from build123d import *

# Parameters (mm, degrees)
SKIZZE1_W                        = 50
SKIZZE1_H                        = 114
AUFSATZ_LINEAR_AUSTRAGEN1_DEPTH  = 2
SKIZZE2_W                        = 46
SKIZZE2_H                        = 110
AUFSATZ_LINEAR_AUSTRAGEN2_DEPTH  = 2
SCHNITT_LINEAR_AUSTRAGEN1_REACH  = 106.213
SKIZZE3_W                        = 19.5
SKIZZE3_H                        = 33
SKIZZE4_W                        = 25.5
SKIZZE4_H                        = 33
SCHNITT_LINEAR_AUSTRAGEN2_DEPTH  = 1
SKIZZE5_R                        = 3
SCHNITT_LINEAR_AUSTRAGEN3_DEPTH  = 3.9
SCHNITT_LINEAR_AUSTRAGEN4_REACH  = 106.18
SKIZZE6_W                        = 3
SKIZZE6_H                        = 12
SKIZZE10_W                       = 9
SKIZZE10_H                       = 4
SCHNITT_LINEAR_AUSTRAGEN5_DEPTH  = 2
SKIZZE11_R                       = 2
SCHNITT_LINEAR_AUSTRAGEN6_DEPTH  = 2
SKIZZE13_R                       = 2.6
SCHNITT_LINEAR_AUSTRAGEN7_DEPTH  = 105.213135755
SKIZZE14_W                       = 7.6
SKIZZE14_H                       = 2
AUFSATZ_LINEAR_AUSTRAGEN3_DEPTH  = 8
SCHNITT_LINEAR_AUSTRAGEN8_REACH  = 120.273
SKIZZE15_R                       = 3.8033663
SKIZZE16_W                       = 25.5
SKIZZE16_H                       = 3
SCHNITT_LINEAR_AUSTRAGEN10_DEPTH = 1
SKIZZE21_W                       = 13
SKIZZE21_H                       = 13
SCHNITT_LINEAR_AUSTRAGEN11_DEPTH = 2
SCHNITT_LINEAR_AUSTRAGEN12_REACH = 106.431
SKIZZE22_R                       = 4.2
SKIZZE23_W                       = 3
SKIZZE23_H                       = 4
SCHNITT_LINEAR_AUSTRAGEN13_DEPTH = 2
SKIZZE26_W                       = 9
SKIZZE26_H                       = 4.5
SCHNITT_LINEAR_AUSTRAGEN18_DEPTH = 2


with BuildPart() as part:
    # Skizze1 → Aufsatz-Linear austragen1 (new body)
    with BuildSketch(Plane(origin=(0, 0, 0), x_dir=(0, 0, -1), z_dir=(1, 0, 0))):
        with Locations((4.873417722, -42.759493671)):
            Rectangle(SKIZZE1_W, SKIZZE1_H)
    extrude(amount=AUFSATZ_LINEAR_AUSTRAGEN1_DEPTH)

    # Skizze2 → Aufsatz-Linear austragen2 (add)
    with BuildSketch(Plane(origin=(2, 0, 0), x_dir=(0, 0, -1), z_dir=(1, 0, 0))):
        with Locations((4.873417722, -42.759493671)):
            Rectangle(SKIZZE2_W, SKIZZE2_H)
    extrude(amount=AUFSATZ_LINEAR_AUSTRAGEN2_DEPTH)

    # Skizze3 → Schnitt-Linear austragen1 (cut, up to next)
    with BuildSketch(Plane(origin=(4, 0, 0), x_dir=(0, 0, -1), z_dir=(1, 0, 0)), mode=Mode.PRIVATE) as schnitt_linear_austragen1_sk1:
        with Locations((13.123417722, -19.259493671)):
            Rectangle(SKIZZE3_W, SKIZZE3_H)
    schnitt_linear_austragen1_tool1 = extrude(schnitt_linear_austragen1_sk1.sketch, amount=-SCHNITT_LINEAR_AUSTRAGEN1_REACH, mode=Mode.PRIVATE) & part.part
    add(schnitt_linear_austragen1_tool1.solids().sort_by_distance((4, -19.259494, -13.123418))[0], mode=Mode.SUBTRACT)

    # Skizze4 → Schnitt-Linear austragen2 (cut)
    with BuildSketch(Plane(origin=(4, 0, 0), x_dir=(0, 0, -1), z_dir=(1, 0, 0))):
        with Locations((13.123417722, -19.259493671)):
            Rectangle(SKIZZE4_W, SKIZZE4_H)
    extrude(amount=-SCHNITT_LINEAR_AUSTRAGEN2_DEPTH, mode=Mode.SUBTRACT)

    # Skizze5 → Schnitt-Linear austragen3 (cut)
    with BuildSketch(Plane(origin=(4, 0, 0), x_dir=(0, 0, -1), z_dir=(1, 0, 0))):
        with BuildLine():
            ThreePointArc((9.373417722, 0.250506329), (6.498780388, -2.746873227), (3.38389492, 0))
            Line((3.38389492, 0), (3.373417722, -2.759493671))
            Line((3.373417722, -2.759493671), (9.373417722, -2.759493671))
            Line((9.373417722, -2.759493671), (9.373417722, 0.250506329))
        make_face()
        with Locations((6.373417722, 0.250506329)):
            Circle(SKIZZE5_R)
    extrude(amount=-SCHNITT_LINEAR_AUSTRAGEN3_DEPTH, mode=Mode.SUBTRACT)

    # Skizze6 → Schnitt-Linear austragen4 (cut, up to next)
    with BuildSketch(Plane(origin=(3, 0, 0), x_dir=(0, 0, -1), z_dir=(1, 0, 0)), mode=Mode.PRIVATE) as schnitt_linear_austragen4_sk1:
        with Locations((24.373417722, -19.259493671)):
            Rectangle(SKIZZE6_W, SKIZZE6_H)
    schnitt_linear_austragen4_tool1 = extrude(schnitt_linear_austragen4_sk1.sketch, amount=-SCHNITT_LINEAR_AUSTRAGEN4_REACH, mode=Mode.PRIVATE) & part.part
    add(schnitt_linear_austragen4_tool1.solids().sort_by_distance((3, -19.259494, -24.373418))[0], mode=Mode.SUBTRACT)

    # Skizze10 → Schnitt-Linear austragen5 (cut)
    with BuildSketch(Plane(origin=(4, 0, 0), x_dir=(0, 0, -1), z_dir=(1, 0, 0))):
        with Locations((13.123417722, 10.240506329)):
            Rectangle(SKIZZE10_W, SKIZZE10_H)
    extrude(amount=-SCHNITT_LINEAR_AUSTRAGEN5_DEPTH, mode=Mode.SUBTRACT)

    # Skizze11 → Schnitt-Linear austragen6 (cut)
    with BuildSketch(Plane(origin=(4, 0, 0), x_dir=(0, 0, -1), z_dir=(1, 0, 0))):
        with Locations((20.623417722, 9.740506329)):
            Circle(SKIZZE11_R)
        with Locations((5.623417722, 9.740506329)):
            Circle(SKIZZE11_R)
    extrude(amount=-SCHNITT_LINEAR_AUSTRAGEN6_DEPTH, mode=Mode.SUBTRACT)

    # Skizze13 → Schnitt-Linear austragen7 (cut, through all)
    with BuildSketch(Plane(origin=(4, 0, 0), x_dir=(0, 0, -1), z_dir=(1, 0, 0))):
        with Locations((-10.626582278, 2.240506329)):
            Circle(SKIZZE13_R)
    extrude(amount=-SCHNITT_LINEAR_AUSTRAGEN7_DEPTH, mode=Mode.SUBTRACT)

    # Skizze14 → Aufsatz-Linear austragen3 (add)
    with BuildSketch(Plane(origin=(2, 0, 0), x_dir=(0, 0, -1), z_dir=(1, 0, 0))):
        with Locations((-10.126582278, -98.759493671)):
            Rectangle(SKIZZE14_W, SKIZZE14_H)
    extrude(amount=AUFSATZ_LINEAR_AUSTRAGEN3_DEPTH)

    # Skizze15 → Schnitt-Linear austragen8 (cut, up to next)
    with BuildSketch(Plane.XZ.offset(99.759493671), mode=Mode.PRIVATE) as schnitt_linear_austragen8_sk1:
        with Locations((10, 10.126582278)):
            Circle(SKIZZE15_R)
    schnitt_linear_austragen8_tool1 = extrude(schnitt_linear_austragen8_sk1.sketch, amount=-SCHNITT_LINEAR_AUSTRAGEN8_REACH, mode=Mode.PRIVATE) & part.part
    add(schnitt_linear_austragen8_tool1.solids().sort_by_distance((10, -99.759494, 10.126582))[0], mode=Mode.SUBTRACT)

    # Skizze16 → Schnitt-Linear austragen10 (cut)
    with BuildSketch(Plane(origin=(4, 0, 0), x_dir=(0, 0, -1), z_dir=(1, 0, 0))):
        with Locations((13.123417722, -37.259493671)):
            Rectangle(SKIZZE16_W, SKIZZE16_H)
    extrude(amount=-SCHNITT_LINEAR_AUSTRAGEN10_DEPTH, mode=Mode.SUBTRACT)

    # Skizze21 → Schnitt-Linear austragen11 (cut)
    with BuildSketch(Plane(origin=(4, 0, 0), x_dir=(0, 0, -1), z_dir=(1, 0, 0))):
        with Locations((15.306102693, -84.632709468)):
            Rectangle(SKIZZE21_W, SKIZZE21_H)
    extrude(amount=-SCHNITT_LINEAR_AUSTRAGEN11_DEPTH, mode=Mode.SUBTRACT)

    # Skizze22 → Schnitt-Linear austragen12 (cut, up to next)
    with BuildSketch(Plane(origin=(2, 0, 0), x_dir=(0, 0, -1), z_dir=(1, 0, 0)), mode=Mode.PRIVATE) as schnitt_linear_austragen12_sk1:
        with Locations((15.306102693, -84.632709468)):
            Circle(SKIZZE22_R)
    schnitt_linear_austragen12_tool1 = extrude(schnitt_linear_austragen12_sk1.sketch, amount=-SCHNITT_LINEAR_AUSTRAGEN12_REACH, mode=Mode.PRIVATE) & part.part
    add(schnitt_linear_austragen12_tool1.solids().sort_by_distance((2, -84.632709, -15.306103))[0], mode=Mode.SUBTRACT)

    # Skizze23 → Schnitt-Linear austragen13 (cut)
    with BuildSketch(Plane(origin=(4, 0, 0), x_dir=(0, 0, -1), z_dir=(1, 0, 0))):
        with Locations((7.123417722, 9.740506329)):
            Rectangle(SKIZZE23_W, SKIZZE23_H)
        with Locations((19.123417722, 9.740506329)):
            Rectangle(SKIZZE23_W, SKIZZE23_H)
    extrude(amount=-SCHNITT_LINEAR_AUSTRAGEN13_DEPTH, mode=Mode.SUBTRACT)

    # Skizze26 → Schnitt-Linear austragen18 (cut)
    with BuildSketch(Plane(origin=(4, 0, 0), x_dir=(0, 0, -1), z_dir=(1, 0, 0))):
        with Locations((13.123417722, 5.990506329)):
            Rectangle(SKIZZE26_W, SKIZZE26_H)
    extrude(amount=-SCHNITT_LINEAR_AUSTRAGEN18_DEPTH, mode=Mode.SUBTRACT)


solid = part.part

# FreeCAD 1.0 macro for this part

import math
import FreeCAD as App
import Part
import Sketcher
from FreeCAD import Vector
Q = App.Units.Quantity

doc = App.newDocument("Part")
body = doc.addObject("PartDesign::Body", "Body")

# Sketch on YZ plane
sketch1 = body.newObject("Sketcher::SketchObject", "Sketch")
sketch1.AttachmentSupport = (doc.getObject("YZ_Plane"), [""])
sketch1.MapMode = "FlatFace"
sketch1.addGeometry(Part.LineSegment(Vector(14, 20, 0), Vector(-100, 20, 0)), False)
sketch1.addGeometry(Part.LineSegment(Vector(-100, 20, 0), Vector(-100, -30, 0)), False)
sketch1.addGeometry(Part.LineSegment(Vector(-100, -30, 0), Vector(14, -30, 0)), False)
sketch1.addGeometry(Part.LineSegment(Vector(14, -30, 0), Vector(14, 20, 0)), False)
sketch1.addConstraint(Sketcher.Constraint("Coincident", 0, 2, 1, 1))
sketch1.addConstraint(Sketcher.Constraint("Coincident", 1, 2, 2, 1))
sketch1.addConstraint(Sketcher.Constraint("Coincident", 2, 2, 3, 1))
sketch1.addConstraint(Sketcher.Constraint("Coincident", 3, 2, 0, 1))
sketch1.addConstraint(Sketcher.Constraint("Horizontal", 0))
sketch1.addConstraint(Sketcher.Constraint("Vertical", 1))
sketch1.addConstraint(Sketcher.Constraint("Horizontal", 2))
sketch1.addConstraint(Sketcher.Constraint("Vertical", 3))
sketch1.addConstraint(Sketcher.Constraint("DistanceX", 0, 2, 0, 1, Q("114 mm")))
sketch1.addConstraint(Sketcher.Constraint("DistanceY", 1, 2, 1, 1, Q("50 mm")))
sketch1.addConstraint(Sketcher.Constraint("DistanceX", 0, 2, -1, 1, Q("99.759494 mm")))
sketch1.addConstraint(Sketcher.Constraint("DistanceY", -1, 1, 0, 2, Q("20.126582 mm")))
pad1 = body.newObject("PartDesign::Pad", "Pad")
pad1.Profile = sketch1
pad1.Length = 2

# Sketch on YZ plane
sketch2 = body.newObject("Sketcher::SketchObject", "Sketch001")
sketch2.AttachmentSupport = (doc.getObject("YZ_Plane"), [""])
sketch2.MapMode = "FlatFace"
sketch2.AttachmentOffset = App.Placement(Vector(0, 0, 2), App.Rotation())
sketch2.addGeometry(Part.LineSegment(Vector(12, 18, 0), Vector(-98, 18, 0)), False)
sketch2.addGeometry(Part.LineSegment(Vector(-98, 18, 0), Vector(-98, -28, 0)), False)
sketch2.addGeometry(Part.LineSegment(Vector(-98, -28, 0), Vector(12, -28, 0)), False)
sketch2.addGeometry(Part.LineSegment(Vector(12, -28, 0), Vector(12, 18, 0)), False)
sketch2.addConstraint(Sketcher.Constraint("Coincident", 0, 2, 1, 1))
sketch2.addConstraint(Sketcher.Constraint("Coincident", 1, 2, 2, 1))
sketch2.addConstraint(Sketcher.Constraint("Coincident", 2, 2, 3, 1))
sketch2.addConstraint(Sketcher.Constraint("Coincident", 3, 2, 0, 1))
sketch2.addConstraint(Sketcher.Constraint("Horizontal", 0))
sketch2.addConstraint(Sketcher.Constraint("Vertical", 1))
sketch2.addConstraint(Sketcher.Constraint("Horizontal", 2))
sketch2.addConstraint(Sketcher.Constraint("Vertical", 3))
sketch2.addConstraint(Sketcher.Constraint("DistanceX", 0, 2, 0, 1, Q("110 mm")))
sketch2.addConstraint(Sketcher.Constraint("DistanceY", 1, 2, 1, 1, Q("46 mm")))
sketch2.addConstraint(Sketcher.Constraint("DistanceX", 0, 2, -1, 1, Q("97.759494 mm")))
sketch2.addConstraint(Sketcher.Constraint("DistanceY", -1, 1, 0, 2, Q("18.126582 mm")))
pad2 = body.newObject("PartDesign::Pad", "Pad001")
pad2.Profile = sketch2
pad2.Length = 2

# Sketch on YZ plane
sketch3 = body.newObject("Sketcher::SketchObject", "Sketch002")
sketch3.AttachmentSupport = (doc.getObject("YZ_Plane"), [""])
sketch3.MapMode = "FlatFace"
sketch3.AttachmentOffset = App.Placement(Vector(0, 0, 4), App.Rotation())
sketch3.addGeometry(Part.LineSegment(Vector(-3, -3, 0), Vector(-36, -3, 0)), False)
sketch3.addGeometry(Part.LineSegment(Vector(-36, -3, 0), Vector(-36, -23, 0)), False)
sketch3.addGeometry(Part.LineSegment(Vector(-36, -23, 0), Vector(-3, -23, 0)), False)
sketch3.addGeometry(Part.LineSegment(Vector(-3, -23, 0), Vector(-3, -3, 0)), False)
sketch3.addConstraint(Sketcher.Constraint("Coincident", 0, 2, 1, 1))
sketch3.addConstraint(Sketcher.Constraint("Coincident", 1, 2, 2, 1))
sketch3.addConstraint(Sketcher.Constraint("Coincident", 2, 2, 3, 1))
sketch3.addConstraint(Sketcher.Constraint("Coincident", 3, 2, 0, 1))
sketch3.addConstraint(Sketcher.Constraint("Horizontal", 0))
sketch3.addConstraint(Sketcher.Constraint("Vertical", 1))
sketch3.addConstraint(Sketcher.Constraint("Horizontal", 2))
sketch3.addConstraint(Sketcher.Constraint("Vertical", 3))
sketch3.addConstraint(Sketcher.Constraint("DistanceX", 0, 2, 0, 1, Q("33 mm")))
sketch3.addConstraint(Sketcher.Constraint("DistanceY", 1, 2, 1, 1, Q("19.5 mm")))
sketch3.addConstraint(Sketcher.Constraint("DistanceX", 0, 2, -1, 1, Q("35.759494 mm")))
sketch3.addConstraint(Sketcher.Constraint("DistanceY", 0, 2, -1, 1, Q("3.373418 mm")))
pocket1 = body.newObject("PartDesign::Pocket", "Pocket")
pocket1.Profile = sketch3
pocket1.Type = "UpToFirst"

# Sketch on YZ plane
sketch4 = body.newObject("Sketcher::SketchObject", "Sketch003")
sketch4.AttachmentSupport = (doc.getObject("YZ_Plane"), [""])
sketch4.MapMode = "FlatFace"
sketch4.AttachmentOffset = App.Placement(Vector(0, 0, 4), App.Rotation())
sketch4.addGeometry(Part.LineSegment(Vector(-3, 0, 0), Vector(-36, 0, 0)), False)
sketch4.addGeometry(Part.LineSegment(Vector(-36, 0, 0), Vector(-36, -26, 0)), False)
sketch4.addGeometry(Part.LineSegment(Vector(-36, -26, 0), Vector(-3, -26, 0)), False)
sketch4.addGeometry(Part.LineSegment(Vector(-3, -26, 0), Vector(-3, 0, 0)), False)
sketch4.addConstraint(Sketcher.Constraint("Coincident", 0, 2, 1, 1))
sketch4.addConstraint(Sketcher.Constraint("Coincident", 1, 2, 2, 1))
sketch4.addConstraint(Sketcher.Constraint("Coincident", 2, 2, 3, 1))
sketch4.addConstraint(Sketcher.Constraint("Coincident", 3, 2, 0, 1))
sketch4.addConstraint(Sketcher.Constraint("Horizontal", 0))
sketch4.addConstraint(Sketcher.Constraint("Vertical", 1))
sketch4.addConstraint(Sketcher.Constraint("Horizontal", 2))
sketch4.addConstraint(Sketcher.Constraint("Vertical", 3))
sketch4.addConstraint(Sketcher.Constraint("DistanceX", 0, 2, 0, 1, Q("33 mm")))
sketch4.addConstraint(Sketcher.Constraint("DistanceY", 1, 2, 1, 1, Q("25.5 mm")))
sketch4.addConstraint(Sketcher.Constraint("DistanceX", 0, 2, -1, 1, Q("35.759494 mm")))
sketch4.addConstraint(Sketcher.Constraint("DistanceY", 0, 2, -1, 1, Q("0.373418 mm")))
pocket2 = body.newObject("PartDesign::Pocket", "Pocket001")
pocket2.Profile = sketch4
pocket2.Length = 1

# Sketch on YZ plane
sketch5 = body.newObject("Sketcher::SketchObject", "Sketch004")
sketch5.AttachmentSupport = (doc.getObject("YZ_Plane"), [""])
sketch5.MapMode = "FlatFace"
sketch5.AttachmentOffset = App.Placement(Vector(0, 0, 4), App.Rotation())
sketch5.addGeometry(Part.LineSegment(Vector(0, -3.4, 0), Vector(-2.8, -3.4, 0)), False)
sketch5.addGeometry(Part.LineSegment(Vector(-2.8, -3.4, 0), Vector(-2.8, -9.4, 0)), False)
sketch5.addGeometry(Part.LineSegment(Vector(-2.8, -9.4, 0), Vector(0.3, -9.4, 0)), False)
sketch5.addGeometry(Part.ArcOfCircle(Part.Circle(Vector(0.3, -6.4, 0), Vector(0, 0, 1), 3), math.radians(-90), math.radians(95)), False)
sketch5.addConstraint(Sketcher.Constraint("Coincident", 0, 2, 1, 1))
sketch5.addConstraint(Sketcher.Constraint("Coincident", 1, 2, 2, 1))
sketch5.addConstraint(Sketcher.Constraint("Tangent", 2, 2, 3, 1))
sketch5.addConstraint(Sketcher.Constraint("Coincident", 3, 2, 0, 1))
sketch5.addConstraint(Sketcher.Constraint("Vertical", 1))
sketch5.addConstraint(Sketcher.Constraint("Horizontal", 2))
sketch5.addConstraint(Sketcher.Constraint("PointOnObject", 3, 2, -2))
sketch5.addConstraint(Sketcher.Constraint("Radius", 3, Q("3 mm")))
sketch5.addConstraint(Sketcher.Constraint("DistanceY", 1, 2, 1, 1, Q("6 mm")))
sketch5.addConstraint(Sketcher.Constraint("DistanceX", 2, 1, 2, 2, Q("3.01 mm")))
sketch5.addConstraint(Sketcher.Constraint("Distance", 0, Q("2.759514 mm")))
sketch5.addConstraint(Sketcher.Constraint("DistanceY", 3, 3, -1, 1, Q("6.373418 mm")))
pocket3 = body.newObject("PartDesign::Pocket", "Pocket002")
pocket3.Profile = sketch5
pocket3.Length = 3.9

# Sketch on YZ plane
sketch6 = body.newObject("Sketcher::SketchObject", "Sketch005")
sketch6.AttachmentSupport = (doc.getObject("YZ_Plane"), [""])
sketch6.MapMode = "FlatFace"
sketch6.AttachmentOffset = App.Placement(Vector(0, 0, 3), App.Rotation())
sketch6.addGeometry(Part.LineSegment(Vector(-13.3, -22.9, 0), Vector(-25.3, -22.9, 0)), False)
sketch6.addGeometry(Part.LineSegment(Vector(-25.3, -22.9, 0), Vector(-25.3, -25.9, 0)), False)
sketch6.addGeometry(Part.LineSegment(Vector(-25.3, -25.9, 0), Vector(-13.3, -25.9, 0)), False)
sketch6.addGeometry(Part.LineSegment(Vector(-13.3, -25.9, 0), Vector(-13.3, -22.9, 0)), False)
sketch6.addConstraint(Sketcher.Constraint("Coincident", 0, 2, 1, 1))
sketch6.addConstraint(Sketcher.Constraint("Coincident", 1, 2, 2, 1))
sketch6.addConstraint(Sketcher.Constraint("Coincident", 2, 2, 3, 1))
sketch6.addConstraint(Sketcher.Constraint("Coincident", 3, 2, 0, 1))
sketch6.addConstraint(Sketcher.Constraint("Horizontal", 0))
sketch6.addConstraint(Sketcher.Constraint("Vertical", 1))
sketch6.addConstraint(Sketcher.Constraint("Horizontal", 2))
sketch6.addConstraint(Sketcher.Constraint("Vertical", 3))
sketch6.addConstraint(Sketcher.Constraint("DistanceX", 0, 2, 0, 1, Q("12 mm")))
sketch6.addConstraint(Sketcher.Constraint("DistanceY", 1, 2, 1, 1, Q("3 mm")))
sketch6.addConstraint(Sketcher.Constraint("DistanceX", 0, 2, -1, 1, Q("25.259494 mm")))
sketch6.addConstraint(Sketcher.Constraint("DistanceY", 0, 2, -1, 1, Q("22.873418 mm")))
pocket4 = body.newObject("PartDesign::Pocket", "Pocket003")
pocket4.Profile = sketch6
pocket4.Type = "UpToFirst"

# Sketch on YZ plane
sketch7 = body.newObject("Sketcher::SketchObject", "Sketch006")
sketch7.AttachmentSupport = (doc.getObject("YZ_Plane"), [""])
sketch7.MapMode = "FlatFace"
sketch7.AttachmentOffset = App.Placement(Vector(0, 0, 4), App.Rotation())
sketch7.addGeometry(Part.LineSegment(Vector(12.2, -8.6, 0), Vector(8.2, -8.6, 0)), False)
sketch7.addGeometry(Part.LineSegment(Vector(8.2, -8.6, 0), Vector(8.2, -17.6, 0)), False)
sketch7.addGeometry(Part.LineSegment(Vector(8.2, -17.6, 0), Vector(12.2, -17.6, 0)), False)
sketch7.addGeometry(Part.LineSegment(Vector(12.2, -17.6, 0), Vector(12.2, -8.6, 0)), False)
sketch7.addConstraint(Sketcher.Constraint("Coincident", 0, 2, 1, 1))
sketch7.addConstraint(Sketcher.Constraint("Coincident", 1, 2, 2, 1))
sketch7.addConstraint(Sketcher.Constraint("Coincident", 2, 2, 3, 1))
sketch7.addConstraint(Sketcher.Constraint("Coincident", 3, 2, 0, 1))
sketch7.addConstraint(Sketcher.Constraint("Horizontal", 0))
sketch7.addConstraint(Sketcher.Constraint("Vertical", 1))
sketch7.addConstraint(Sketcher.Constraint("Horizontal", 2))
sketch7.addConstraint(Sketcher.Constraint("Vertical", 3))
sketch7.addConstraint(Sketcher.Constraint("DistanceX", 0, 2, 0, 1, Q("4 mm")))
sketch7.addConstraint(Sketcher.Constraint("DistanceY", 1, 2, 1, 1, Q("9 mm")))
sketch7.addConstraint(Sketcher.Constraint("DistanceX", -1, 1, 0, 2, Q("8.240506 mm")))
sketch7.addConstraint(Sketcher.Constraint("DistanceY", 0, 2, -1, 1, Q("8.623418 mm")))
pocket5 = body.newObject("PartDesign::Pocket", "Pocket004")
pocket5.Profile = sketch7
pocket5.Length = 2

# Sketch on YZ plane
sketch8 = body.newObject("Sketcher::SketchObject", "Sketch007")
sketch8.AttachmentSupport = (doc.getObject("YZ_Plane"), [""])
sketch8.MapMode = "FlatFace"
sketch8.AttachmentOffset = App.Placement(Vector(0, 0, 4), App.Rotation())
sketch8.addGeometry(Part.Circle(Vector(9.7, -20.6, 0), Vector(0, 0, 1), 2), False)
sketch8.addGeometry(Part.Circle(Vector(9.7, -5.6, 0), Vector(0, 0, 1), 2), False)
sketch8.addConstraint(Sketcher.Constraint("Equal", 0, 1))
sketch8.addConstraint(Sketcher.Constraint("Vertical", 0, 3, 1, 3))
sketch8.addConstraint(Sketcher.Constraint("Diameter", 0, Q("4 mm")))
sketch8.addConstraint(Sketcher.Constraint("DistanceY", 0, 3, 1, 3, Q("15 mm")))
sketch8.addConstraint(Sketcher.Constraint("DistanceX", -1, 1, 0, 3, Q("9.740506 mm")))
sketch8.addConstraint(Sketcher.Constraint("DistanceY", 0, 3, -1, 1, Q("20.623418 mm")))
pocket6 = body.newObject("PartDesign::Pocket", "Pocket005")
pocket6.Profile = sketch8
pocket6.Length = 2

# Sketch on YZ plane
sketch9 = body.newObject("Sketcher::SketchObject", "Sketch008")
sketch9.AttachmentSupport = (doc.getObject("YZ_Plane"), [""])
sketch9.MapMode = "FlatFace"
sketch9.AttachmentOffset = App.Placement(Vector(0, 0, 4), App.Rotation())
sketch9.addGeometry(Part.Circle(Vector(2.2, 10.6, 0), Vector(0, 0, 1), 2.6), False)
sketch9.addConstraint(Sketcher.Constraint("Diameter", 0, Q("5.2 mm")))
sketch9.addConstraint(Sketcher.Constraint("DistanceX", -1, 1, 0, 3, Q("2.240506 mm")))
sketch9.addConstraint(Sketcher.Constraint("DistanceY", -1, 1, 0, 3, Q("10.626582 mm")))
pocket7 = body.newObject("PartDesign::Pocket", "Pocket006")
pocket7.Profile = sketch9
pocket7.Type = "ThroughAll"

# Sketch on YZ plane
sketch10 = body.newObject("Sketcher::SketchObject", "Sketch009")
sketch10.AttachmentSupport = (doc.getObject("YZ_Plane"), [""])
sketch10.MapMode = "FlatFace"
sketch10.AttachmentOffset = App.Placement(Vector(0, 0, 2), App.Rotation())
sketch10.addGeometry(Part.LineSegment(Vector(-97.8, 13.9, 0), Vector(-99.8, 13.9, 0)), False)
sketch10.addGeometry(Part.LineSegment(Vector(-99.8, 13.9, 0), Vector(-99.8, 6.3, 0)), False)
sketch10.addGeometry(Part.LineSegment(Vector(-99.8, 6.3, 0), Vector(-97.8, 6.3, 0)), False)
sketch10.addGeometry(Part.LineSegment(Vector(-97.8, 6.3, 0), Vector(-97.8, 13.9, 0)), False)
sketch10.addConstraint(Sketcher.Constraint("Coincident", 0, 2, 1, 1))
sketch10.addConstraint(Sketcher.Constraint("Coincident", 1, 2, 2, 1))
sketch10.addConstraint(Sketcher.Constraint("Coincident", 2, 2, 3, 1))
sketch10.addConstraint(Sketcher.Constraint("Coincident", 3, 2, 0, 1))
sketch10.addConstraint(Sketcher.Constraint("Horizontal", 0))
sketch10.addConstraint(Sketcher.Constraint("Vertical", 1))
sketch10.addConstraint(Sketcher.Constraint("Horizontal", 2))
sketch10.addConstraint(Sketcher.Constraint("Vertical", 3))
sketch10.addConstraint(Sketcher.Constraint("DistanceX", 0, 2, 0, 1, Q("2 mm")))
sketch10.addConstraint(Sketcher.Constraint("DistanceY", 1, 2, 1, 1, Q("7.6 mm")))
sketch10.addConstraint(Sketcher.Constraint("DistanceX", 0, 2, -1, 1, Q("99.759494 mm")))
sketch10.addConstraint(Sketcher.Constraint("DistanceY", -1, 1, 0, 2, Q("13.926582 mm")))
pad3 = body.newObject("PartDesign::Pad", "Pad002")
pad3.Profile = sketch10
pad3.Length = 8

# Sketch on XZ plane
sketch11 = body.newObject("Sketcher::SketchObject", "Sketch010")
sketch11.AttachmentSupport = (doc.getObject("XZ_Plane"), [""])
sketch11.MapMode = "FlatFace"
sketch11.AttachmentOffset = App.Placement(Vector(0, 0, 99.759494), App.Rotation())
sketch11.addGeometry(Part.Circle(Vector(10, 10.1, 0), Vector(0, 0, 1), 3.8), False)
sketch11.addConstraint(Sketcher.Constraint("DistanceX", -1, 1, 0, 3, Q("10 mm")))
sketch11.addConstraint(Sketcher.Constraint("Diameter", 0, Q("7.606733 mm")))
sketch11.addConstraint(Sketcher.Constraint("DistanceY", -1, 1, 0, 3, Q("10.126582 mm")))
pocket8 = body.newObject("PartDesign::Pocket", "Pocket007")
pocket8.Profile = sketch11
pocket8.Type = "UpToFirst"

# Sketch on YZ plane
sketch12 = body.newObject("Sketcher::SketchObject", "Sketch011")
sketch12.AttachmentSupport = (doc.getObject("YZ_Plane"), [""])
sketch12.MapMode = "FlatFace"
sketch12.AttachmentOffset = App.Placement(Vector(0, 0, 4), App.Rotation())
sketch12.addGeometry(Part.LineSegment(Vector(-35.8, -0.4, 0), Vector(-38.8, -0.4, 0)), False)
sketch12.addGeometry(Part.LineSegment(Vector(-38.8, -0.4, 0), Vector(-38.8, -25.9, 0)), False)
sketch12.addGeometry(Part.LineSegment(Vector(-38.8, -25.9, 0), Vector(-35.8, -25.9, 0)), False)
sketch12.addGeometry(Part.LineSegment(Vector(-35.8, -25.9, 0), Vector(-35.8, -0.4, 0)), False)
sketch12.addConstraint(Sketcher.Constraint("Coincident", 0, 2, 1, 1))
sketch12.addConstraint(Sketcher.Constraint("Coincident", 1, 2, 2, 1))
sketch12.addConstraint(Sketcher.Constraint("Coincident", 2, 2, 3, 1))
sketch12.addConstraint(Sketcher.Constraint("Coincident", 3, 2, 0, 1))
sketch12.addConstraint(Sketcher.Constraint("Horizontal", 0))
sketch12.addConstraint(Sketcher.Constraint("Vertical", 1))
sketch12.addConstraint(Sketcher.Constraint("Horizontal", 2))
sketch12.addConstraint(Sketcher.Constraint("Vertical", 3))
sketch12.addConstraint(Sketcher.Constraint("DistanceX", 0, 2, 0, 1, Q("3 mm")))
sketch12.addConstraint(Sketcher.Constraint("DistanceY", 1, 2, 1, 1, Q("25.5 mm")))
sketch12.addConstraint(Sketcher.Constraint("DistanceX", 0, 2, -1, 1, Q("38.759494 mm")))
sketch12.addConstraint(Sketcher.Constraint("DistanceY", 0, 2, -1, 1, Q("0.373418 mm")))
pocket9 = body.newObject("PartDesign::Pocket", "Pocket008")
pocket9.Profile = sketch12
pocket9.Length = 1

# Sketch on YZ plane
sketch13 = body.newObject("Sketcher::SketchObject", "Sketch012")
sketch13.AttachmentSupport = (doc.getObject("YZ_Plane"), [""])
sketch13.MapMode = "FlatFace"
sketch13.AttachmentOffset = App.Placement(Vector(0, 0, 4), App.Rotation())
sketch13.addGeometry(Part.LineSegment(Vector(-78, -9, 0), Vector(-91, -9, 0)), False)
sketch13.addGeometry(Part.LineSegment(Vector(-91, -9, 0), Vector(-91, -22, 0)), False)
sketch13.addGeometry(Part.LineSegment(Vector(-91, -22, 0), Vector(-78, -22, 0)), False)
sketch13.addGeometry(Part.LineSegment(Vector(-78, -22, 0), Vector(-78, -9, 0)), False)
sketch13.addConstraint(Sketcher.Constraint("Coincident", 0, 2, 1, 1))
sketch13.addConstraint(Sketcher.Constraint("Coincident", 1, 2, 2, 1))
sketch13.addConstraint(Sketcher.Constraint("Coincident", 2, 2, 3, 1))
sketch13.addConstraint(Sketcher.Constraint("Coincident", 3, 2, 0, 1))
sketch13.addConstraint(Sketcher.Constraint("Horizontal", 0))
sketch13.addConstraint(Sketcher.Constraint("Vertical", 1))
sketch13.addConstraint(Sketcher.Constraint("Horizontal", 2))
sketch13.addConstraint(Sketcher.Constraint("Vertical", 3))
sketch13.addConstraint(Sketcher.Constraint("Equal", 2, 1))
sketch13.addConstraint(Sketcher.Constraint("DistanceX", 0, 2, 0, 1, Q("13 mm")))
sketch13.addConstraint(Sketcher.Constraint("DistanceX", 0, 2, -1, 1, Q("91.132709 mm")))
sketch13.addConstraint(Sketcher.Constraint("DistanceY", 0, 2, -1, 1, Q("8.806103 mm")))
pocket10 = body.newObject("PartDesign::Pocket", "Pocket009")
pocket10.Profile = sketch13
pocket10.Length = 2

# Sketch on YZ plane
sketch14 = body.newObject("Sketcher::SketchObject", "Sketch013")
sketch14.AttachmentSupport = (doc.getObject("YZ_Plane"), [""])
sketch14.MapMode = "FlatFace"
sketch14.AttachmentOffset = App.Placement(Vector(0, 0, 2), App.Rotation())
sketch14.addGeometry(Part.Circle(Vector(-84.6, -15.3, 0), Vector(0, 0, 1), 4.2), False)
sketch14.addConstraint(Sketcher.Constraint("Diameter", 0, Q("8.4 mm")))
sketch14.addConstraint(Sketcher.Constraint("DistanceX", 0, 3, -1, 1, Q("84.632709 mm")))
sketch14.addConstraint(Sketcher.Constraint("DistanceY", 0, 3, -1, 1, Q("15.306103 mm")))
pocket11 = body.newObject("PartDesign::Pocket", "Pocket010")
pocket11.Profile = sketch14
pocket11.Type = "UpToFirst"

# Sketch on YZ plane
sketch15 = body.newObject("Sketcher::SketchObject", "Sketch014")
sketch15.AttachmentSupport = (doc.getObject("YZ_Plane"), [""])
sketch15.MapMode = "FlatFace"
sketch15.AttachmentOffset = App.Placement(Vector(0, 0, 4), App.Rotation())
sketch15.addGeometry(Part.LineSegment(Vector(11.7, -5.6, 0), Vector(7.7, -5.6, 0)), False)
sketch15.addGeometry(Part.LineSegment(Vector(7.7, -5.6, 0), Vector(7.7, -8.6, 0)), False)
sketch15.addGeometry(Part.LineSegment(Vector(7.7, -8.6, 0), Vector(11.7, -8.6, 0)), False)
sketch15.addGeometry(Part.LineSegment(Vector(11.7, -8.6, 0), Vector(11.7, -5.6, 0)), False)
sketch15.addGeometry(Part.LineSegment(Vector(11.7, -17.6, 0), Vector(7.7, -17.6, 0)), False)
sketch15.addGeometry(Part.LineSegment(Vector(7.7, -17.6, 0), Vector(7.7, -20.6, 0)), False)
sketch15.addGeometry(Part.LineSegment(Vector(7.7, -20.6, 0), Vector(11.7, -20.6, 0)), False)
sketch15.addGeometry(Part.LineSegment(Vector(11.7, -20.6, 0), Vector(11.7, -17.6, 0)), False)
sketch15.addConstraint(Sketcher.Constraint("Coincident", 0, 2, 1, 1))
sketch15.addConstraint(Sketcher.Constraint("Coincident", 1, 2, 2, 1))
sketch15.addConstraint(Sketcher.Constraint("Coincident", 2, 2, 3, 1))
sketch15.addConstraint(Sketcher.Constraint("Coincident", 3, 2, 0, 1))
sketch15.addConstraint(Sketcher.Constraint("Coincident", 4, 2, 5, 1))
sketch15.addConstraint(Sketcher.Constraint("Coincident", 5, 2, 6, 1))
sketch15.addConstraint(Sketcher.Constraint("Coincident", 6, 2, 7, 1))
sketch15.addConstraint(Sketcher.Constraint("Coincident", 7, 2, 4, 1))
sketch15.addConstraint(Sketcher.Constraint("Horizontal", 0))
sketch15.addConstraint(Sketcher.Constraint("Vertical", 1))
sketch15.addConstraint(Sketcher.Constraint("Horizontal", 2))
sketch15.addConstraint(Sketcher.Constraint("Vertical", 3))
sketch15.addConstraint(Sketcher.Constraint("Horizontal", 4))
sketch15.addConstraint(Sketcher.Constraint("Vertical", 5))
sketch15.addConstraint(Sketcher.Constraint("Horizontal", 6))
sketch15.addConstraint(Sketcher.Constraint("Vertical", 7))
sketch15.addConstraint(Sketcher.Constraint("Vertical", 1, 2, 4, 2))
sketch15.addConstraint(Sketcher.Constraint("Vertical", 3, 2, 6, 2))
sketch15.addConstraint(Sketcher.Constraint("Equal", 3, 5))
sketch15.addConstraint(Sketcher.Constraint("DistanceX", 0, 2, 0, 1, Q("4 mm")))
sketch15.addConstraint(Sketcher.Constraint("DistanceY", 1, 2, 1, 1, Q("3 mm")))
sketch15.addConstraint(Sketcher.Constraint("DistanceY", 4, 2, 1, 2, Q("9 mm")))
sketch15.addConstraint(Sketcher.Constraint("DistanceX", -1, 1, 0, 2, Q("7.740506 mm")))
sketch15.addConstraint(Sketcher.Constraint("DistanceY", 0, 2, -1, 1, Q("5.623418 mm")))
pocket12 = body.newObject("PartDesign::Pocket", "Pocket011")
pocket12.Profile = sketch15
pocket12.Length = 2

# Sketch on YZ plane
sketch16 = body.newObject("Sketcher::SketchObject", "Sketch015")
sketch16.AttachmentSupport = (doc.getObject("YZ_Plane"), [""])
sketch16.MapMode = "FlatFace"
sketch16.AttachmentOffset = App.Placement(Vector(0, 0, 4), App.Rotation())
sketch16.addGeometry(Part.LineSegment(Vector(8.2, -8.6, 0), Vector(3.7, -8.6, 0)), False)
sketch16.addGeometry(Part.LineSegment(Vector(3.7, -8.6, 0), Vector(3.7, -17.6, 0)), False)
sketch16.addGeometry(Part.LineSegment(Vector(3.7, -17.6, 0), Vector(8.2, -17.6, 0)), False)
sketch16.addGeometry(Part.LineSegment(Vector(8.2, -17.6, 0), Vector(8.2, -8.6, 0)), False)
sketch16.addConstraint(Sketcher.Constraint("Coincident", 0, 2, 1, 1))
sketch16.addConstraint(Sketcher.Constraint("Coincident", 1, 2, 2, 1))
sketch16.addConstraint(Sketcher.Constraint("Coincident", 2, 2, 3, 1))
sketch16.addConstraint(Sketcher.Constraint("Coincident", 3, 2, 0, 1))
sketch16.addConstraint(Sketcher.Constraint("Horizontal", 0))
sketch16.addConstraint(Sketcher.Constraint("Vertical", 1))
sketch16.addConstraint(Sketcher.Constraint("Horizontal", 2))
sketch16.addConstraint(Sketcher.Constraint("Vertical", 3))
sketch16.addConstraint(Sketcher.Constraint("DistanceY", 1, 2, 1, 1, Q("9 mm")))
sketch16.addConstraint(Sketcher.Constraint("DistanceX", 0, 2, 0, 1, Q("4.5 mm")))
sketch16.addConstraint(Sketcher.Constraint("DistanceX", -1, 1, 0, 2, Q("3.740506 mm")))
sketch16.addConstraint(Sketcher.Constraint("DistanceY", 0, 2, -1, 1, Q("8.623418 mm")))
pocket13 = body.newObject("PartDesign::Pocket", "Pocket012")
pocket13.Profile = sketch16
pocket13.Length = 2

doc.recompute()
